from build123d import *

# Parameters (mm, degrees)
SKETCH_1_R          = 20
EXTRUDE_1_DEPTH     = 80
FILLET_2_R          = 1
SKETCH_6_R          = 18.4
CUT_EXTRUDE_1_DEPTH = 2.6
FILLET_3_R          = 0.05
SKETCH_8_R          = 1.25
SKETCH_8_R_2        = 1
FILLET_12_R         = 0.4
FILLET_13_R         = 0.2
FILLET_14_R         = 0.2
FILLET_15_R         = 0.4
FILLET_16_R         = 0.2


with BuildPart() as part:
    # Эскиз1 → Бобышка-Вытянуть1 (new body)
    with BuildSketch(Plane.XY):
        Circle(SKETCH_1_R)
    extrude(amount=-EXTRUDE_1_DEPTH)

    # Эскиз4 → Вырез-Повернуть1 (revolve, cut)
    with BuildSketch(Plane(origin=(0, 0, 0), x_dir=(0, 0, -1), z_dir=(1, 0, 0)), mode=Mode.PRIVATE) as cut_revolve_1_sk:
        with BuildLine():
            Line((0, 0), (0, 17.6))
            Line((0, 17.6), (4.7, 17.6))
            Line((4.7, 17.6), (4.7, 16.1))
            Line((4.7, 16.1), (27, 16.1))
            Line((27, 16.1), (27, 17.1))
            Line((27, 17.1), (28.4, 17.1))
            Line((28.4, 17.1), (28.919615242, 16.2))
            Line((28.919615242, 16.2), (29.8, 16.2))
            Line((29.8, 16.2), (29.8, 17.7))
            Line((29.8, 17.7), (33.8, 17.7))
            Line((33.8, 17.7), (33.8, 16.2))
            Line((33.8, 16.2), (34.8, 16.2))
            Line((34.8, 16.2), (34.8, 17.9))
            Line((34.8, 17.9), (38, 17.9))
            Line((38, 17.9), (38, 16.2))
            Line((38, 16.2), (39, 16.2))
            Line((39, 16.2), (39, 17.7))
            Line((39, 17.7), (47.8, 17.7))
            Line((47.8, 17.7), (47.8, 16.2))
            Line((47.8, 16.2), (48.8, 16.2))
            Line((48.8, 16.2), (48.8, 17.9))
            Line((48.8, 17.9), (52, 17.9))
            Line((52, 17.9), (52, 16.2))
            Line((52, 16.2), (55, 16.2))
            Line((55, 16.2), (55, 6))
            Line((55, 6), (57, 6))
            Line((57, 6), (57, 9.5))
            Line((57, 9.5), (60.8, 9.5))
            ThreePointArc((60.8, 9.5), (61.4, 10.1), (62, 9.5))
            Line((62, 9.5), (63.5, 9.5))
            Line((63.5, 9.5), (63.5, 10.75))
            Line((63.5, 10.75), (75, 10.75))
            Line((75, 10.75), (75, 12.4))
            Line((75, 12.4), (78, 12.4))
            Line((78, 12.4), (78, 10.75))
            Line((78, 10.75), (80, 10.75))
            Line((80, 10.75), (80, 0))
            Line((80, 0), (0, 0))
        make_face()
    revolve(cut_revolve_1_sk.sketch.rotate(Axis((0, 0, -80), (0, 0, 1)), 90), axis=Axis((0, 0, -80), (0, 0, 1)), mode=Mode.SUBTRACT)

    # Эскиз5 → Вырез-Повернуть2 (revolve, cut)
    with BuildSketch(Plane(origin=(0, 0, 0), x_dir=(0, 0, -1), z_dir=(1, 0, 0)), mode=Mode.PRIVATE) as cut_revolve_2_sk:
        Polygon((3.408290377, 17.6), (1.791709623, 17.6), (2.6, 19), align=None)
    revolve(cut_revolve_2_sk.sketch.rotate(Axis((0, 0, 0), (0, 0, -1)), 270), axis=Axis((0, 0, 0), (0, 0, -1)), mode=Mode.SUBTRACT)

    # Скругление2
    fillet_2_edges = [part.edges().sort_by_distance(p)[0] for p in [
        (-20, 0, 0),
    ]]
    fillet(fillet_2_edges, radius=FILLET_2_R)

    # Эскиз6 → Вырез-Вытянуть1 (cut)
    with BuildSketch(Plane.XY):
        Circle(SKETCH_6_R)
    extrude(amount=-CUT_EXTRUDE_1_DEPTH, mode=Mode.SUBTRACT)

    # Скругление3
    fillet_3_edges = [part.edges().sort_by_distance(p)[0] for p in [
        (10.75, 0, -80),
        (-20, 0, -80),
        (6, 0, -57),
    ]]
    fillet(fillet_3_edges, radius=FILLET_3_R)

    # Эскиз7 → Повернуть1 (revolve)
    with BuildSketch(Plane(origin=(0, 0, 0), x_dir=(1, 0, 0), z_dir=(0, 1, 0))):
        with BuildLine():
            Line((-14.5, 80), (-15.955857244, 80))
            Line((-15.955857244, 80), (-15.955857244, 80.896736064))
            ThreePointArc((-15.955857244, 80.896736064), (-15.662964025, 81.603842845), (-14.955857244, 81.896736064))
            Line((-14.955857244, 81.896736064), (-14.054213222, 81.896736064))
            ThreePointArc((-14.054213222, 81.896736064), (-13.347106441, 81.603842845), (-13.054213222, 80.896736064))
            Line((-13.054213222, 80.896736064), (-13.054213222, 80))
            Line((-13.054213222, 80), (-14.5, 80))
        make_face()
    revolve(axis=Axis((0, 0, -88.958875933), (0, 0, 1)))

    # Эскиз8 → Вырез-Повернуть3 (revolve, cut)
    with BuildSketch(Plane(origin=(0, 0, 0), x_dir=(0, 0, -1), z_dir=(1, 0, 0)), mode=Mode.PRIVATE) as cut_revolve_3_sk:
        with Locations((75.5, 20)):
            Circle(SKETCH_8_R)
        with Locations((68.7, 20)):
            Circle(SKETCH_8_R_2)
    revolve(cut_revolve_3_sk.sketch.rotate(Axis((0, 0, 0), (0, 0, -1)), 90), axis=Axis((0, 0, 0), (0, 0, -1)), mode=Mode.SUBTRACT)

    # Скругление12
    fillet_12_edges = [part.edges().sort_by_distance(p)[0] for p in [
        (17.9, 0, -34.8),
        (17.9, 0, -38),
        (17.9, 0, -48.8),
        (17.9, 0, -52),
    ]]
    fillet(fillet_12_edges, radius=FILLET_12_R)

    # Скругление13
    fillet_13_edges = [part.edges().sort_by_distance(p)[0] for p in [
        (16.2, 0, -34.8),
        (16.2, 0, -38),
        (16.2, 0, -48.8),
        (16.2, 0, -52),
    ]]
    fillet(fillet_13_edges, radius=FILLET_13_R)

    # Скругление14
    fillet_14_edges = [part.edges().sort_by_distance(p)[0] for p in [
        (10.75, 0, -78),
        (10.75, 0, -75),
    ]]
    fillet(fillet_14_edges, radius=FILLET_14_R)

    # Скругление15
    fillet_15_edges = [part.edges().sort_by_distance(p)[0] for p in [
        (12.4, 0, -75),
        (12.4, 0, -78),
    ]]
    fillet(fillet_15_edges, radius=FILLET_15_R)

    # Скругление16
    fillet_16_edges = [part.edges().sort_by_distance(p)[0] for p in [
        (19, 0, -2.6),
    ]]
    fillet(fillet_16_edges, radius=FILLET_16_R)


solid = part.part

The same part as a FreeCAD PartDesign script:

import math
import FreeCAD as App
import Part
import Sketcher
from FreeCAD import Vector
Q = App.Units.Quantity


def edges_at(feature, points):
    """Names of the edges that pass closest to the given points."""
    edges = feature.Shape.Edges
    near = lambda p: min(range(len(edges)), key=lambda i: edges[i].distToShape(Part.Vertex(*p))[0])
    return sorted({f"Edge{near(p) + 1}" for p in points})

doc = App.newDocument("Part")
body = doc.addObject("PartDesign::Body", "Body")

# Sketch on XY plane
sketch1 = body.newObject("Sketcher::SketchObject", "Sketch")
sketch1.AttachmentSupport = (doc.getObject("XY_Plane"), [""])
sketch1.MapMode = "FlatFace"
sketch1.addGeometry(Part.Circle(Vector(0, 0, 0), Vector(0, 0, 1), 20), False)
sketch1.addConstraint([
    Sketcher.Constraint("Coincident", 0, 3, -1, 1),
    Sketcher.Constraint("Diameter", 0, Q("40 mm")),
])
pad1 = body.newObject("PartDesign::Pad", "Pad")
pad1.Profile = sketch1
pad1.Length = 80
pad1.Reversed = True

# Sketch on YZ plane
sketch2 = body.newObject("Sketcher::SketchObject", "Sketch001")
sketch2.AttachmentSupport = (doc.getObject("YZ_Plane"), [""])
sketch2.MapMode = "FlatFace"
sketch2.addGeometry([
    Part.LineSegment(Vector(17.6, 0, 0), Vector(0, 0, 0)),  # 0
    Part.LineSegment(Vector(0, 0, 0), Vector(0, -80, 0)),  # 1
    Part.LineSegment(Vector(0, -80, 0), Vector(10.75, -80, 0)),  # 2
    Part.LineSegment(Vector(10.75, -80, 0), Vector(10.75, -78, 0)),  # 3
    Part.LineSegment(Vector(10.75, -78, 0), Vector(12.4, -78, 0)),  # 4
    Part.LineSegment(Vector(12.4, -78, 0), Vector(12.4, -75, 0)),  # 5
    Part.LineSegment(Vector(12.4, -75, 0), Vector(10.75, -75, 0)),  # 6
    Part.LineSegment(Vector(10.75, -75, 0), Vector(10.75, -63.5, 0)),  # 7
    Part.LineSegment(Vector(10.75, -63.5, 0), Vector(9.5, -63.5, 0)),  # 8
    Part.LineSegment(Vector(9.5, -63.5, 0), Vector(9.5, -62, 0)),  # 9
    Part.ArcOfCircle(Part.Circle(Vector(9.5, -61.4, 0), Vector(0, 0, 1), 0.6), math.radians(-90), math.radians(90)),  # 10
    Part.LineSegment(Vector(9.5, -60.8, 0), Vector(9.5, -57, 0)),  # 11
    Part.LineSegment(Vector(9.5, -57, 0), Vector(6, -57, 0)),  # 12
    Part.LineSegment(Vector(6, -57, 0), Vector(6, -55, 0)),  # 13
    Part.LineSegment(Vector(6, -55, 0), Vector(16.2, -55, 0)),  # 14
    Part.LineSegment(Vector(16.2, -55, 0), Vector(16.2, -52, 0)),  # 15
    Part.LineSegment(Vector(16.2, -52, 0), Vector(17.9, -52, 0)),  # 16
    Part.LineSegment(Vector(17.9, -52, 0), Vector(17.9, -48.8, 0)),  # 17
    Part.LineSegment(Vector(17.9, -48.8, 0), Vector(16.2, -48.8, 0)),  # 18
    Part.LineSegment(Vector(16.2, -48.8, 0), Vector(16.2, -47.8, 0)),  # 19
    Part.LineSegment(Vector(16.2, -47.8, 0), Vector(17.7, -47.8, 0)),  # 20
    Part.LineSegment(Vector(17.7, -47.8, 0), Vector(17.7, -39, 0)),  # 21
    Part.LineSegment(Vector(17.7, -39, 0), Vector(16.2, -39, 0)),  # 22
    Part.LineSegment(Vector(16.2, -39, 0), Vector(16.2, -38, 0)),  # 23
    Part.LineSegment(Vector(16.2, -38, 0), Vector(17.9, -38, 0)),  # 24
    Part.LineSegment(Vector(17.9, -38, 0), Vector(17.9, -34.8, 0)),  # 25
    Part.LineSegment(Vector(17.9, -34.8, 0), Vector(16.2, -34.8, 0)),  # 26
    Part.LineSegment(Vector(16.2, -34.8, 0), Vector(16.2, -33.8, 0)),  # 27
    Part.LineSegment(Vector(16.2, -33.8, 0), Vector(17.7, -33.8, 0)),  # 28
    Part.LineSegment(Vector(17.7, -33.8, 0), Vector(17.7, -29.8, 0)),  # 29
    Part.LineSegment(Vector(17.7, -29.8, 0), Vector(16.2, -29.8, 0)),  # 30
    Part.LineSegment(Vector(16.2, -29.8, 0), Vector(16.2, -28.919615, 0)),  # 31
    Part.LineSegment(Vector(16.2, -28.919615, 0), Vector(17.1, -28.4, 0)),  # 32
    Part.LineSegment(Vector(17.1, -28.4, 0), Vector(17.1, -27, 0)),  # 33
    Part.LineSegment(Vector(17.1, -27, 0), Vector(16.1, -27, 0)),  # 34
    Part.LineSegment(Vector(16.1, -27, 0), Vector(16.1, -4.7, 0)),  # 35
    Part.LineSegment(Vector(16.1, -4.7, 0), Vector(17.6, -4.7, 0)),  # 36
    Part.LineSegment(Vector(17.6, -4.7, 0), Vector(17.6, 0, 0)),  # 37
], False)
sketch2.addConstraint([
    Sketcher.Constraint("Coincident", 0, 2, 1, 1),
    Sketcher.Constraint("Coincident", 1, 2, 2, 1),
    Sketcher.Constraint("Coincident", 2, 2, 3, 1),
    Sketcher.Constraint("Coincident", 3, 2, 4, 1),
    Sketcher.Constraint("Coincident", 4, 2, 5, 1),
    Sketcher.Constraint("Coincident", 5, 2, 6, 1),
    Sketcher.Constraint("Coincident", 6, 2, 7, 1),
    Sketcher.Constraint("Coincident", 7, 2, 8, 1),
    Sketcher.Constraint("Coincident", 8, 2, 9, 1),
    Sketcher.Constraint("Coincident", 9, 2, 10, 1),
    Sketcher.Constraint("Coincident", 10, 2, 11, 1),
    Sketcher.Constraint("Coincident", 11, 2, 12, 1),
    Sketcher.Constraint("Coincident", 12, 2, 13, 1),
    Sketcher.Constraint("Coincident", 13, 2, 14, 1),
    Sketcher.Constraint("Coincident", 14, 2, 15, 1),
    Sketcher.Constraint("Coincident", 15, 2, 16, 1),
    Sketcher.Constraint("Coincident", 16, 2, 17, 1),
    Sketcher.Constraint("Coincident", 17, 2, 18, 1),
    Sketcher.Constraint("Coincident", 18, 2, 19, 1),
    Sketcher.Constraint("Coincident", 19, 2, 20, 1),
    Sketcher.Constraint("Coincident", 20, 2, 21, 1),
    Sketcher.Constraint("Coincident", 21, 2, 22, 1),
    Sketcher.Constraint("Coincident", 22, 2, 23, 1),
    Sketcher.Constraint("Coincident", 23, 2, 24, 1),
    Sketcher.Constraint("Coincident", 24, 2, 25, 1),
    Sketcher.Constraint("Coincident", 25, 2, 26, 1),
    Sketcher.Constraint("Coincident", 26, 2, 27, 1),
    Sketcher.Constraint("Coincident", 27, 2, 28, 1),
    Sketcher.Constraint("Coincident", 28, 2, 29, 1),
    Sketcher.Constraint("Coincident", 29, 2, 30, 1),
    Sketcher.Constraint("Coincident", 30, 2, 31, 1),
    Sketcher.Constraint("Coincident", 31, 2, 32, 1),
    Sketcher.Constraint("Coincident", 32, 2, 33, 1),
    Sketcher.Constraint("Coincident", 33, 2, 34, 1),
    Sketcher.Constraint("Coincident", 34, 2, 35, 1),
    Sketcher.Constraint("Coincident", 35, 2, 36, 1),
    Sketcher.Constraint("Coincident", 36, 2, 37, 1),
    Sketcher.Constraint("Coincident", 37, 2, 0, 1),
    Sketcher.Constraint("Horizontal", 0),
    Sketcher.Constraint("Vertical", 1),
    Sketcher.Constraint("Horizontal", 2),
    Sketcher.Constraint("Vertical", 3),
    Sketcher.Constraint("Horizontal", 4),
    Sketcher.Constraint("Vertical", 5),
    Sketcher.Constraint("Horizontal", 6),
    Sketcher.Constraint("Vertical", 7),
    Sketcher.Constraint("Horizontal", 8),
    Sketcher.Constraint("Vertical", 9),
    Sketcher.Constraint("Vertical", 11),
    Sketcher.Constraint("Horizontal", 12),
    Sketcher.Constraint("Vertical", 13),
    Sketcher.Constraint("Horizontal", 14),
    Sketcher.Constraint("Vertical", 15),
    Sketcher.Constraint("Horizontal", 16),
    Sketcher.Constraint("Vertical", 17),
    Sketcher.Constraint("Horizontal", 18),
    Sketcher.Constraint("Vertical", 19),
    Sketcher.Constraint("Horizontal", 20),
    Sketcher.Constraint("Vertical", 21),
    Sketcher.Constraint("Horizontal", 22),
    Sketcher.Constraint("Vertical", 23),
    Sketcher.Constraint("Horizontal", 24),
    Sketcher.Constraint("Vertical", 25),
    Sketcher.Constraint("Horizontal", 26),
    Sketcher.Constraint("Vertical", 27),
    Sketcher.Constraint("Horizontal", 28),
    Sketcher.Constraint("Vertical", 29),
    Sketcher.Constraint("Horizontal", 30),
    Sketcher.Constraint("Vertical", 31),
    Sketcher.Constraint("Vertical", 33),
    Sketcher.Constraint("Horizontal", 34),
    Sketcher.Constraint("Vertical", 35),
    Sketcher.Constraint("Horizontal", 36),
    Sketcher.Constraint("Vertical", 37),
    Sketcher.Constraint("Coincident", 0, 2, -1, 1),
    Sketcher.Constraint("Vertical", 3, 2, 6, 2),
    Sketcher.Constraint("Vertical", 10, 3, 8, 2),
    Sketcher.Constraint("Vertical", 9, 2, 10, 2),
    Sketcher.Constraint("Vertical", 15, 2, 18, 2),
    Sketcher.Constraint("Vertical", 19, 2, 22, 2),
    Sketcher.Constraint("Vertical", 17, 2, 24, 2),
    Sketcher.Constraint("Vertical", 23, 2, 26, 2),
    Sketcher.Constraint("Vertical", 21, 2, 28, 2),
    Sketcher.Constraint("Vertical", 27, 2, 30, 2),
    Sketcher.Constraint("Equal", 30, 36),
    Sketcher.Constraint("Equal", 36, 9),
    Sketcher.Constraint("Equal", 3, 13),
    Sketcher.Constraint("Equal", 5, 15),
    Sketcher.Constraint("Equal", 34, 19),
    Sketcher.Constraint("Equal", 19, 23),
    Sketcher.Constraint("Equal", 17, 25),
    Sketcher.Constraint("Equal", 23, 27),
    Sketcher.Constraint("Radius", 10, Q("0.6 mm")),
    Sketcher.Constraint("DistanceX", 34, 2, 34, 1, Q("1 mm")),
    Sketcher.Constraint("DistanceY", 1, 2, 1, 1, Q("80 mm")),
    Sketcher.Constraint("DistanceY", 3, 1, 3, 2, Q("2 mm")),
    Sketcher.Constraint("DistanceY", 5, 1, 5, 2, Q("3 mm")),
    Sketcher.Constraint("DistanceY", 29, 1, 29, 2, Q("4 mm")),
    Sketcher.Constraint("Angle", 32, Q("30 deg")),
    Sketcher.Constraint("DistanceX", 0, 2, 0, 1, Q("17.6 mm")),
    Sketcher.Constraint("DistanceX", 12, 2, 12, 1, Q("3.5 mm")),
    Sketcher.Constraint("DistanceX", 14, 1, 14, 2, Q("10.2 mm")),
    Sketcher.Constraint("DistanceX", 16, 1, 16, 2, Q("1.7 mm")),
    Sketcher.Constraint("DistanceX", 20, 1, 20, 2, Q("1.5 mm")),
    Sketcher.Constraint("DistanceY", 7, 1, 7, 2, Q("11.5 mm")),
    Sketcher.Constraint("DistanceY", 11, 1, 11, 2, Q("3.8 mm")),
    Sketcher.Constraint("DistanceY", 17, 1, 17, 2, Q("3.2 mm")),
    Sketcher.Constraint("DistanceY", 21, 1, 21, 2, Q("8.8 mm")),
    Sketcher.Constraint("DistanceY", 33, 1, 33, 2, Q("1.4 mm")),
    Sketcher.Constraint("DistanceY", 35, 1, 35, 2, Q("22.3 mm")),
    Sketcher.Constraint("DistanceY", 37, 1, 37, 2, Q("4.7 mm")),
    Sketcher.Constraint("DistanceX", -1, 1, 12, 2, Q("6 mm")),
    Sketcher.Constraint("DistanceX", 2, 1, 2, 2, Q("10.75 mm")),
    Sketcher.Constraint("DistanceX", 4, 1, 4, 2, Q("1.65 mm")),
])
groove = body.newObject("PartDesign::Groove", "Groove")
groove.Profile = sketch2
groove.ReferenceAxis = (sketch2, ["V_Axis"])
groove.Angle = 360

# Sketch on YZ plane
sketch3 = body.newObject("Sketcher::SketchObject", "Sketch002")
sketch3.AttachmentSupport = (doc.getObject("YZ_Plane"), [""])
sketch3.MapMode = "FlatFace"
sketch3.addGeometry([
    Part.LineSegment(Vector(17.6, -1.79171, 0), Vector(17.6, -3.40829, 0)),
    Part.LineSegment(Vector(17.6, -3.40829, 0), Vector(19, -2.6, 0)),
    Part.LineSegment(Vector(19, -2.6, 0), Vector(17.6, -1.79171, 0)),
], False)
sketch3.addConstraint([
    Sketcher.Constraint("Coincident", 0, 2, 1, 1),
    Sketcher.Constraint("Coincident", 1, 2, 2, 1),
    Sketcher.Constraint("Coincident", 2, 2, 0, 1),
    Sketcher.Constraint("Vertical", 0),
    Sketcher.Constraint("Equal", 1, 2),
    Sketcher.Constraint("Angle", 1, Q("30 deg")),
    Sketcher.Constraint("DistanceX", -1, 1, 1, 2, Q("19 mm")),
    Sketcher.Constraint("DistanceX", -1, 1, 0, 2, Q("17.6 mm")),
    Sketcher.Constraint("DistanceY", 1, 2, -1, 1, Q("2.6 mm")),
])
groove2 = body.newObject("PartDesign::Groove", "Groove001")
groove2.Profile = sketch3
groove2.ReferenceAxis = (sketch3, ["V_Axis"])
groove2.Angle = 360
doc.recompute()

fillet = body.newObject("PartDesign::Fillet", "Fillet")
fillet.Base = (groove2, edges_at(groove2, [(-20, 0, 0)]))
fillet.Radius = 1

# Sketch on XY plane
sketch4 = body.newObject("Sketcher::SketchObject", "Sketch003")
sketch4.AttachmentSupport = (doc.getObject("XY_Plane"), [""])
sketch4.MapMode = "FlatFace"
sketch4.addGeometry(Part.Circle(Vector(0, 0, 0), Vector(0, 0, 1), 18.4), False)
sketch4.addConstraint([
    Sketcher.Constraint("Coincident", 0, 3, -1, 1),
    Sketcher.Constraint("Diameter", 0, Q("36.8 mm")),
])
pocket1 = body.newObject("PartDesign::Pocket", "Pocket")
pocket1.Profile = sketch4
pocket1.Length = 2.6
doc.recompute()

fillet2 = body.newObject("PartDesign::Fillet", "Fillet001")
fillet2.Base = (pocket1, edges_at(pocket1, [(10.75, 0, -80), (-20, 0, -80), (6, 0, -57)]))
fillet2.Radius = 0.05

# Sketch on XZ plane
sketch5 = body.newObject("Sketcher::SketchObject", "Sketch004")
sketch5.AttachmentSupport = (doc.getObject("XZ_Plane"), [""])
sketch5.MapMode = "FlatFace"
sketch5.addGeometry([
    Part.LineSegment(Vector(-15.955857, -80.896736, 0), Vector(-15.955857, -80, 0)),  # 0
    Part.LineSegment(Vector(-15.955857, -80, 0), Vector(-13.054213, -80, 0)),  # 1
    Part.LineSegment(Vector(-13.054213, -80, 0), Vector(-13.054213, -80.896736, 0)),  # 2
    Part.ArcOfCircle(Part.Circle(Vector(-14.054213, -80.896736, 0), Vector(0, 0, 1), 1), math.radians(-90), math.radians(0)),  # 3
    Part.LineSegment(Vector(-14.054213, -81.896736, 0), Vector(-14.955857, -81.896736, 0)),  # 4
    Part.ArcOfCircle(Part.Circle(Vector(-14.955857, -80.896736, 0), Vector(0, 0, 1), 1), math.radians(-180), math.radians(-90)),  # 5
], False)
sketch5.addConstraint([
    Sketcher.Constraint("Coincident", 0, 2, 1, 1),
    Sketcher.Constraint("Coincident", 1, 2, 2, 1),
    Sketcher.Constraint("Tangent", 2, 2, 3, 2),
    Sketcher.Constraint("Tangent", 3, 1, 4, 1),
    Sketcher.Constraint("Tangent", 4, 2, 5, 2),
    Sketcher.Constraint("Tangent", 5, 1, 0, 1),
    Sketcher.Constraint("Vertical", 0),
    Sketcher.Constraint("Horizontal", 1),
    Sketcher.Constraint("Vertical", 2),
    Sketcher.Constraint("Horizontal", 4),
    Sketcher.Constraint("Equal", 3, 5),
    Sketcher.Constraint("Radius", 3, Q("1 mm")),
    Sketcher.Constraint("DistanceY", 0, 2, -1, 1, Q("80 mm")),
    Sketcher.Constraint("DistanceX", 1, 1, 1, 2, Q("2.901644 mm")),
    Sketcher.Constraint("DistanceY", 0, 1, 0, 2, Q("0.896736 mm")),
    Sketcher.Constraint("DistanceX", 3, 3, -1, 1, Q("14.054213 mm")),
])
revolution = body.newObject("PartDesign::Revolution", "Revolution")
revolution.Profile = sketch5
revolution.ReferenceAxis = (sketch5, ["V_Axis"])
revolution.Angle = 360

# Sketch on YZ plane
sketch6 = body.newObject("Sketcher::SketchObject", "Sketch005")
sketch6.AttachmentSupport = (doc.getObject("YZ_Plane"), [""])
sketch6.MapMode = "FlatFace"
sketch6.addGeometry([
    Part.Circle(Vector(20, -75.5, 0), Vector(0, 0, 1), 1.25),
    Part.Circle(Vector(20, -68.7, 0), Vector(0, 0, 1), 1),
], False)
sketch6.addConstraint([
    Sketcher.Constraint("Vertical", 0, 3, 1, 3),
    Sketcher.Constraint("Diameter", 1, Q("2 mm")),
    Sketcher.Constraint("Diameter", 0, Q("2.5 mm")),
    Sketcher.Constraint("DistanceX", -1, 1, 0, 3, Q("20 mm")),
    Sketcher.Constraint("DistanceY", 0, 3, -1, 1, Q("75.5 mm")),
    Sketcher.Constraint("DistanceY", 1, 3, -1, 1, Q("68.7 mm")),
])
groove3 = body.newObject("PartDesign::Groove", "Groove002")
groove3.Profile = sketch6
groove3.ReferenceAxis = (sketch6, ["V_Axis"])
groove3.Angle = 360
doc.recompute()

fillet3 = body.newObject("PartDesign::Fillet", "Fillet002")
fillet3.Base = (groove3, edges_at(groove3, [
    (17.9, 0, -34.8),
    (17.9, 0, -38),
    (17.9, 0, -48.8),
    (17.9, 0, -52),
]))
fillet3.Radius = 0.4
doc.recompute()

fillet4 = body.newObject("PartDesign::Fillet", "Fillet003")
fillet4.Base = (fillet3, edges_at(fillet3, [
    (16.2, 0, -34.8),
    (16.2, 0, -38),
    (16.2, 0, -48.8),
    (16.2, 0, -52),
]))
fillet4.Radius = 0.2
doc.recompute()

fillet5 = body.newObject("PartDesign::Fillet", "Fillet004")
fillet5.Base = (fillet4, edges_at(fillet4, [(10.75, 0, -78), (10.75, 0, -75)]))
fillet5.Radius = 0.2
doc.recompute()

fillet6 = body.newObject("PartDesign::Fillet", "Fillet005")
fillet6.Base = (fillet5, edges_at(fillet5, [(12.4, 0, -75), (12.4, 0, -78)]))
fillet6.Radius = 0.4
doc.recompute()

fillet7 = body.newObject("PartDesign::Fillet", "Fillet006")
fillet7.Base = (fillet6, edges_at(fillet6, [(19, 0, -2.6)]))
fillet7.Radius = 0.2

doc.recompute()
